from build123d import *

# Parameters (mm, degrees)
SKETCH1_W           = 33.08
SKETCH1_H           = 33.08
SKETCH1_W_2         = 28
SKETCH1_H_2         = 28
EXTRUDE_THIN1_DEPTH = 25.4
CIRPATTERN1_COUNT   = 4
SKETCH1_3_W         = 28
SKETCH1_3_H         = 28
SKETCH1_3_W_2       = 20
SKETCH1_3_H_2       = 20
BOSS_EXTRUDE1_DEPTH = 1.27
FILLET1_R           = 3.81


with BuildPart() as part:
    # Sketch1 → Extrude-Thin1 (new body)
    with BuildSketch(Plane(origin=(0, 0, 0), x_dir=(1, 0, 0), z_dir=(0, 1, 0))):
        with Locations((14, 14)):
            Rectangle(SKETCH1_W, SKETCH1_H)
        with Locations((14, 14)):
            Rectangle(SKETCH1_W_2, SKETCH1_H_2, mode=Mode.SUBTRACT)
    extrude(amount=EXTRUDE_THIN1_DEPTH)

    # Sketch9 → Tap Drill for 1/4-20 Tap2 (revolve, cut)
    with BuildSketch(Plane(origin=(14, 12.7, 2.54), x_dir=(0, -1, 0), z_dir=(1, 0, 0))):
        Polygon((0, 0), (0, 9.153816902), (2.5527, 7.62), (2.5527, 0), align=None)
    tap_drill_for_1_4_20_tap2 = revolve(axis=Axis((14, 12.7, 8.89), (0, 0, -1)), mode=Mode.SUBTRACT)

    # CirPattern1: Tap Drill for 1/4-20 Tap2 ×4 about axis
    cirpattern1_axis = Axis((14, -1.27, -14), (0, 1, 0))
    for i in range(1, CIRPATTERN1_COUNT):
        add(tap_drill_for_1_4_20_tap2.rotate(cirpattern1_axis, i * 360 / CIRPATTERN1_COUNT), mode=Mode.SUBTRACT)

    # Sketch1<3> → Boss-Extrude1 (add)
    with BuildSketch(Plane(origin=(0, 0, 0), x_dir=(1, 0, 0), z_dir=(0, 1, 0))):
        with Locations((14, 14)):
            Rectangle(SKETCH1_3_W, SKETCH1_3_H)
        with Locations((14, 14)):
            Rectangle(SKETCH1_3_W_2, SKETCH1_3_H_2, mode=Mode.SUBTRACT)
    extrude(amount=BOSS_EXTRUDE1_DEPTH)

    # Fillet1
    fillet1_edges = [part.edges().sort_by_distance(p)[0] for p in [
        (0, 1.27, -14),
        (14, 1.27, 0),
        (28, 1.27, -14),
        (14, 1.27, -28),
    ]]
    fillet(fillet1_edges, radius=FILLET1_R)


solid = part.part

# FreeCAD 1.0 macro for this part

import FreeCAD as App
import Part
import Sketcher

V = App.Vector
Q = App.Units.Quantity


def edges_at(feature, points):
    """Names of the edges that pass closest to the given points."""
    edges = feature.Shape.Edges
    near = lambda p: min(range(len(edges)), key=lambda i: edges[i].distToShape(Part.Vertex(*p))[0])
    return sorted({f"Edge{near(p) + 1}" for p in points})


def add_polygon(sketch, points):
    """Adds a closed chain of lines whose ends are joined by coincident constraints."""
    first, n = sketch.GeometryCount, len(points)
    for a, b in zip(points, points[1:] + points[:1]):
        sketch.addGeometry(Part.LineSegment(App.Vector(*a, 0), App.Vector(*b, 0)), False)
    for i in range(n):
        sketch.addConstraint(Sketcher.Constraint("Coincident", first + i, 2, first + (i + 1) % n, 1))

doc = App.newDocument("Part")
body = doc.addObject("PartDesign::Body", "Body")

# Sketch on XZ plane
sketch1 = doc.addObject("Sketcher::SketchObject", "Sketch")
body.addObject(sketch1)
sketch1.AttachmentSupport = (doc.XZ_Plane, [""])
sketch1.MapMode = "FlatFace"
add_polygon(sketch1, [(-3, -31), (-3, 3), (31, 3), (31, -31)])  # lines 0-3
add_polygon(sketch1, [(28, 0), (0, 0), (0, -28), (28, -28)])  # lines 4-7
sketch1.addConstraint(Sketcher.Constraint("Vertical", 0))
sketch1.addConstraint(Sketcher.Constraint("Horizontal", 1))
sketch1.addConstraint(Sketcher.Constraint("Vertical", 2))
sketch1.addConstraint(Sketcher.Constraint("Horizontal", 3))
sketch1.addConstraint(Sketcher.Constraint("Horizontal", 4))
sketch1.addConstraint(Sketcher.Constraint("Vertical", 5))
sketch1.addConstraint(Sketcher.Constraint("Horizontal", 6))
sketch1.addConstraint(Sketcher.Constraint("Vertical", 7))
sketch1.addConstraint(Sketcher.Constraint("Coincident", 4, 2, -1, 1))
sketch1.addConstraint(Sketcher.Constraint("Equal", 3, 0))
sketch1.addConstraint(Sketcher.Constraint("Equal", 6, 5))
sketch1.addConstraint(Sketcher.Constraint("DistanceX", 0, 2, -1, 1, Q("0.1 in")))
sketch1.addConstraint(Sketcher.Constraint("DistanceY", -1, 1, 0, 2, Q("0.1 in")))
sketch1.addConstraint(Sketcher.Constraint("DistanceY", 3, 2, 5, 2, Q("0.1 in")))
sketch1.addConstraint(Sketcher.Constraint("DistanceX", 1, 1, 1, 2, 33.08))
pad1 = doc.addObject("PartDesign::Pad", "Pad")
body.addObject(pad1)
pad1.Profile = sketch1
pad1.Length = Q("1 in")
pad1.Reversed = True

# Sketch on YZ plane
sketch2 = doc.addObject("Sketcher::SketchObject", "Sketch001")
body.addObject(sketch2)
sketch2.AttachmentSupport = (doc.YZ_Plane, [""])
sketch2.MapMode = "FlatFace"
sketch2.AttachmentOffset = App.Placement(V(0, 0, 14), App.Rotation())
add_polygon(sketch2, [(12.7, -6.6), (12.7, 2.5), (10.1, 2.5), (10.1, -5.1)])  # lines 0-3
sketch2.addGeometry(Part.LineSegment(V(12.7, 2.5, 0), V(12.7, -6.6, 0)), True)  # axis
sketch2.addConstraint(Sketcher.Constraint("Vertical", 0))
sketch2.addConstraint(Sketcher.Constraint("Horizontal", 1))
sketch2.addConstraint(Sketcher.Constraint("Vertical", 2))
sketch2.addConstraint(Sketcher.Constraint("Vertical", 4))
sketch2.addConstraint(Sketcher.Constraint("Coincident", 4, 1, 0, 2))
sketch2.addConstraint(Sketcher.Constraint("Equal", 0, 4))
sketch2.addConstraint(Sketcher.Constraint("DistanceY", 2, 2, 2, 1, Q("0.3 in")))
sketch2.addConstraint(Sketcher.Constraint("Angle", 3, Q("-31 deg")))
sketch2.addConstraint(Sketcher.Constraint("DistanceX", -1, 1, 0, 2, Q("0.5 in")))
sketch2.addConstraint(Sketcher.Constraint("DistanceY", -1, 1, 0, 2, Q("0.1 in")))
sketch2.addConstraint(Sketcher.Constraint("DistanceX", 1, 2, 1, 1, Q("0.1005 in")))
groove = doc.addObject("PartDesign::Groove", "Groove")
body.addObject(groove)
groove.Profile = sketch2
groove.ReferenceAxis = (sketch2, ["Axis0"])
groove.Angle = 360
doc.recompute()

datumline = doc.addObject("PartDesign::Line", "DatumLine")
body.addObject(datumline)
datumline.Placement = App.Placement(V(14, 0, -14), App.Rotation(V(0, 0, 1), V(0, 1, 0)))
polarpattern = doc.addObject("PartDesign::PolarPattern", "PolarPattern")
body.addObject(polarpattern)
polarpattern.Originals = [groove]
polarpattern.Axis = (datumline, [""])
polarpattern.Angle = 360
polarpattern.Occurrences = 4
body.Tip = polarpattern

# Sketch on XZ plane
sketch3 = doc.addObject("Sketcher::SketchObject", "Sketch002")
body.addObject(sketch3)
sketch3.AttachmentSupport = (doc.XZ_Plane, [""])
sketch3.MapMode = "FlatFace"
add_polygon(sketch3, [(0, -28), (0, 0), (28, 0), (28, -28)])  # lines 0-3
add_polygon(sketch3, [(24, -4), (4, -4), (4, -24), (24, -24)])  # lines 4-7
sketch3.addConstraint(Sketcher.Constraint("Vertical", 0))
sketch3.addConstraint(Sketcher.Constraint("Horizontal", 1))
sketch3.addConstraint(Sketcher.Constraint("Vertical", 2))
sketch3.addConstraint(Sketcher.Constraint("Horizontal", 3))
sketch3.addConstraint(Sketcher.Constraint("Horizontal", 4))
sketch3.addConstraint(Sketcher.Constraint("Vertical", 5))
sketch3.addConstraint(Sketcher.Constraint("Horizontal", 6))
sketch3.addConstraint(Sketcher.Constraint("Vertical", 7))
sketch3.addConstraint(Sketcher.Constraint("Coincident", 0, 2, -1, 1))
sketch3.addConstraint(Sketcher.Constraint("Equal", 3, 0))
sketch3.addConstraint(Sketcher.Constraint("Equal", 6, 5))
sketch3.addConstraint(Sketcher.Constraint("DistanceX", 1, 1, 1, 2, 28.0))
sketch3.addConstraint(Sketcher.Constraint("DistanceX", 4, 2, 4, 1, 20.0))
sketch3.addConstraint(Sketcher.Constraint("DistanceX", -1, 1, 4, 2, 4.0))
sketch3.addConstraint(Sketcher.Constraint("DistanceY", 4, 2, -1, 1, 4.0))
pad2 = doc.addObject("PartDesign::Pad", "Pad001")
body.addObject(pad2)
pad2.Profile = sketch3
pad2.Length = Q("0.05 in")
pad2.Reversed = True
doc.recompute()

fillet = doc.addObject("PartDesign::Fillet", "Fillet")
body.addObject(fillet)
fillet.Base = (pad2, edges_at(pad2, [
    (0, 1.27, -14),
    (14, 1.27, 0),
    (28, 1.27, -14),
    (14, 1.27, -28),
]))
fillet.Radius = Q("0.15 in")

doc.recompute()
